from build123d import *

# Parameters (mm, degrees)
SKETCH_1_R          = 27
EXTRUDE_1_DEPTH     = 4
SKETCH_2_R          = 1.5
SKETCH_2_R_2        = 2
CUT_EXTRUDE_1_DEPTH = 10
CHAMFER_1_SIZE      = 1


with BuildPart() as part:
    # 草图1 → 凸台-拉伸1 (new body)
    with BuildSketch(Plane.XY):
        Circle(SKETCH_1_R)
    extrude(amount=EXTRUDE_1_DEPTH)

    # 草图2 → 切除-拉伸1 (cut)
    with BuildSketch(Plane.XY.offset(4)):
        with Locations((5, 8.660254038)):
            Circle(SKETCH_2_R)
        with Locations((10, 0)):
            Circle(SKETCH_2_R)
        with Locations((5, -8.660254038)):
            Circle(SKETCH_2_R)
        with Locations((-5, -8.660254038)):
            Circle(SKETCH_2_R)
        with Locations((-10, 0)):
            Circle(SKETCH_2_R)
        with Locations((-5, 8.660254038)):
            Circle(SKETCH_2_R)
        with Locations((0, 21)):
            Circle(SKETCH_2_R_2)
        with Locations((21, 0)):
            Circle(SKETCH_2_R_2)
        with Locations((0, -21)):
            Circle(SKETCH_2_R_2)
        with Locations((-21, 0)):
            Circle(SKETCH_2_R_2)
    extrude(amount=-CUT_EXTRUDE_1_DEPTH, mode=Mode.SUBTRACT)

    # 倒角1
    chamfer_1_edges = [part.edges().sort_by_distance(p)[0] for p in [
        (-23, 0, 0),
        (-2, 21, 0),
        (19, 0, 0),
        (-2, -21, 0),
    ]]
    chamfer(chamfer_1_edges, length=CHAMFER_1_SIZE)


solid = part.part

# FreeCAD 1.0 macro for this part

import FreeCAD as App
import Part
import Sketcher

V = App.Vector
Q = App.Units.Quantity


def edges_at(feature, points):
    """Names of the edges that pass closest to the given points."""
    edges = feature.Shape.Edges
    near = lambda p: min(range(len(edges)), key=lambda i: edges[i].distToShape(Part.Vertex(*p))[0])
    return sorted({f"Edge{near(p) + 1}" for p in points})

doc = App.newDocument("Part")
body = doc.addObject("PartDesign::Body", "Body")

# Sketch on XY plane
sketch1 = doc.addObject("Sketcher::SketchObject", "Sketch")
body.addObject(sketch1)
sketch1.AttachmentSupport = (doc.XY_Plane, [""])
sketch1.MapMode = "FlatFace"
sketch1.addGeometry(Part.Circle(V(0, 0, 0), V(0, 0, 1), 27), False)
sketch1.addConstraint([
    Sketcher.Constraint("Coincident", 0, 3, -1, 1),
    Sketcher.Constraint("Diameter", 0, Q("54 mm")),
])
pad1 = doc.addObject("PartDesign::Pad", "Pad")
body.addObject(pad1)
pad1.Profile = sketch1
pad1.Length = 4

# Sketch on XY plane
sketch2 = doc.addObject("Sketcher::SketchObject", "Sketch001")
body.addObject(sketch2)
sketch2.AttachmentSupport = (doc.XY_Plane, [""])
sketch2.MapMode = "FlatFace"
sketch2.AttachmentOffset = App.Placement(V(0, 0, 4), App.Rotation())
sketch2.addGeometry([
    Part.Circle(V(5, 8.7, 0), V(0, 0, 1), 1.5),  # 0
    Part.Circle(V(10, 0, 0), V(0, 0, 1), 1.5),  # 1
    Part.Circle(V(5, -8.7, 0), V(0, 0, 1), 1.5),  # 2
    Part.Circle(V(-5, -8.7, 0), V(0, 0, 1), 1.5),  # 3
    Part.Circle(V(-10, 0, 0), V(0, 0, 1), 1.5),  # 4
    Part.Circle(V(-5, 8.7, 0), V(0, 0, 1), 1.5),  # 5
    Part.Circle(V(0, 21, 0), V(0, 0, 1), 2),  # 6
    Part.Circle(V(21, 0, 0), V(0, 0, 1), 2),  # 7
    Part.Circle(V(0, -21, 0), V(0, 0, 1), 2),  # 8
    Part.Circle(V(-21, 0, 0), V(0, 0, 1), 2),  # 9
], False)
sketch2.addConstraint([
    Sketcher.Constraint("Equal", 0, 1),
    Sketcher.Constraint("Equal", 1, 2),
    Sketcher.Constraint("Equal", 2, 3),
    Sketcher.Constraint("Equal", 3, 4),
    Sketcher.Constraint("Equal", 4, 5),
    Sketcher.Constraint("Equal", 6, 7),
    Sketcher.Constraint("Equal", 7, 8),
    Sketcher.Constraint("Equal", 8, 9),
    Sketcher.Constraint("Symmetric", 0, 3, 3, 3, -1, 1),
    Sketcher.Constraint("Symmetric", 1, 3, 4, 3, -1, 1),
    Sketcher.Constraint("Symmetric", 2, 3, 5, 3, -1, 1),
    Sketcher.Constraint("Symmetric", 6, 3, 8, 3, -1, 1),
    Sketcher.Constraint("Symmetric", 7, 3, 9, 3, -1, 1),
    Sketcher.Constraint("Symmetric", 2, 3, 3, 3, -2),
    Sketcher.Constraint("PointOnObject", 1, 3, -1),
    Sketcher.Constraint("PointOnObject", 6, 3, -2),
    Sketcher.Constraint("PointOnObject", 7, 3, -1),
    Sketcher.Constraint("Diameter", 0, Q("3 mm")),
    Sketcher.Constraint("Diameter", 6, Q("4 mm")),
    Sketcher.Constraint("DistanceX", -1, 1, 0, 3, Q("5 mm")),
    Sketcher.Constraint("DistanceX", -1, 1, 1, 3, Q("10 mm")),
    Sketcher.Constraint("DistanceY", -1, 1, 6, 3, Q("21 mm")),
    Sketcher.Constraint("DistanceX", -1, 1, 7, 3, Q("21 mm")),
    Sketcher.Constraint("DistanceY", 2, 3, 0, 3, Q("17.320508 mm")),
])
pocket1 = doc.addObject("PartDesign::Pocket", "Pocket")
body.addObject(pocket1)
pocket1.Profile = sketch2
pocket1.Length = 10
doc.recompute()

chamfer = doc.addObject("PartDesign::Chamfer", "Chamfer")
body.addObject(chamfer)
chamfer.Base = (pocket1, edges_at(pocket1, [
    (-23, 0, 0),
    (-2, 21, 0),
    (19, 0, 0),
    (-2, -21, 0),
]))
chamfer.Size = 1

doc.recompute()
